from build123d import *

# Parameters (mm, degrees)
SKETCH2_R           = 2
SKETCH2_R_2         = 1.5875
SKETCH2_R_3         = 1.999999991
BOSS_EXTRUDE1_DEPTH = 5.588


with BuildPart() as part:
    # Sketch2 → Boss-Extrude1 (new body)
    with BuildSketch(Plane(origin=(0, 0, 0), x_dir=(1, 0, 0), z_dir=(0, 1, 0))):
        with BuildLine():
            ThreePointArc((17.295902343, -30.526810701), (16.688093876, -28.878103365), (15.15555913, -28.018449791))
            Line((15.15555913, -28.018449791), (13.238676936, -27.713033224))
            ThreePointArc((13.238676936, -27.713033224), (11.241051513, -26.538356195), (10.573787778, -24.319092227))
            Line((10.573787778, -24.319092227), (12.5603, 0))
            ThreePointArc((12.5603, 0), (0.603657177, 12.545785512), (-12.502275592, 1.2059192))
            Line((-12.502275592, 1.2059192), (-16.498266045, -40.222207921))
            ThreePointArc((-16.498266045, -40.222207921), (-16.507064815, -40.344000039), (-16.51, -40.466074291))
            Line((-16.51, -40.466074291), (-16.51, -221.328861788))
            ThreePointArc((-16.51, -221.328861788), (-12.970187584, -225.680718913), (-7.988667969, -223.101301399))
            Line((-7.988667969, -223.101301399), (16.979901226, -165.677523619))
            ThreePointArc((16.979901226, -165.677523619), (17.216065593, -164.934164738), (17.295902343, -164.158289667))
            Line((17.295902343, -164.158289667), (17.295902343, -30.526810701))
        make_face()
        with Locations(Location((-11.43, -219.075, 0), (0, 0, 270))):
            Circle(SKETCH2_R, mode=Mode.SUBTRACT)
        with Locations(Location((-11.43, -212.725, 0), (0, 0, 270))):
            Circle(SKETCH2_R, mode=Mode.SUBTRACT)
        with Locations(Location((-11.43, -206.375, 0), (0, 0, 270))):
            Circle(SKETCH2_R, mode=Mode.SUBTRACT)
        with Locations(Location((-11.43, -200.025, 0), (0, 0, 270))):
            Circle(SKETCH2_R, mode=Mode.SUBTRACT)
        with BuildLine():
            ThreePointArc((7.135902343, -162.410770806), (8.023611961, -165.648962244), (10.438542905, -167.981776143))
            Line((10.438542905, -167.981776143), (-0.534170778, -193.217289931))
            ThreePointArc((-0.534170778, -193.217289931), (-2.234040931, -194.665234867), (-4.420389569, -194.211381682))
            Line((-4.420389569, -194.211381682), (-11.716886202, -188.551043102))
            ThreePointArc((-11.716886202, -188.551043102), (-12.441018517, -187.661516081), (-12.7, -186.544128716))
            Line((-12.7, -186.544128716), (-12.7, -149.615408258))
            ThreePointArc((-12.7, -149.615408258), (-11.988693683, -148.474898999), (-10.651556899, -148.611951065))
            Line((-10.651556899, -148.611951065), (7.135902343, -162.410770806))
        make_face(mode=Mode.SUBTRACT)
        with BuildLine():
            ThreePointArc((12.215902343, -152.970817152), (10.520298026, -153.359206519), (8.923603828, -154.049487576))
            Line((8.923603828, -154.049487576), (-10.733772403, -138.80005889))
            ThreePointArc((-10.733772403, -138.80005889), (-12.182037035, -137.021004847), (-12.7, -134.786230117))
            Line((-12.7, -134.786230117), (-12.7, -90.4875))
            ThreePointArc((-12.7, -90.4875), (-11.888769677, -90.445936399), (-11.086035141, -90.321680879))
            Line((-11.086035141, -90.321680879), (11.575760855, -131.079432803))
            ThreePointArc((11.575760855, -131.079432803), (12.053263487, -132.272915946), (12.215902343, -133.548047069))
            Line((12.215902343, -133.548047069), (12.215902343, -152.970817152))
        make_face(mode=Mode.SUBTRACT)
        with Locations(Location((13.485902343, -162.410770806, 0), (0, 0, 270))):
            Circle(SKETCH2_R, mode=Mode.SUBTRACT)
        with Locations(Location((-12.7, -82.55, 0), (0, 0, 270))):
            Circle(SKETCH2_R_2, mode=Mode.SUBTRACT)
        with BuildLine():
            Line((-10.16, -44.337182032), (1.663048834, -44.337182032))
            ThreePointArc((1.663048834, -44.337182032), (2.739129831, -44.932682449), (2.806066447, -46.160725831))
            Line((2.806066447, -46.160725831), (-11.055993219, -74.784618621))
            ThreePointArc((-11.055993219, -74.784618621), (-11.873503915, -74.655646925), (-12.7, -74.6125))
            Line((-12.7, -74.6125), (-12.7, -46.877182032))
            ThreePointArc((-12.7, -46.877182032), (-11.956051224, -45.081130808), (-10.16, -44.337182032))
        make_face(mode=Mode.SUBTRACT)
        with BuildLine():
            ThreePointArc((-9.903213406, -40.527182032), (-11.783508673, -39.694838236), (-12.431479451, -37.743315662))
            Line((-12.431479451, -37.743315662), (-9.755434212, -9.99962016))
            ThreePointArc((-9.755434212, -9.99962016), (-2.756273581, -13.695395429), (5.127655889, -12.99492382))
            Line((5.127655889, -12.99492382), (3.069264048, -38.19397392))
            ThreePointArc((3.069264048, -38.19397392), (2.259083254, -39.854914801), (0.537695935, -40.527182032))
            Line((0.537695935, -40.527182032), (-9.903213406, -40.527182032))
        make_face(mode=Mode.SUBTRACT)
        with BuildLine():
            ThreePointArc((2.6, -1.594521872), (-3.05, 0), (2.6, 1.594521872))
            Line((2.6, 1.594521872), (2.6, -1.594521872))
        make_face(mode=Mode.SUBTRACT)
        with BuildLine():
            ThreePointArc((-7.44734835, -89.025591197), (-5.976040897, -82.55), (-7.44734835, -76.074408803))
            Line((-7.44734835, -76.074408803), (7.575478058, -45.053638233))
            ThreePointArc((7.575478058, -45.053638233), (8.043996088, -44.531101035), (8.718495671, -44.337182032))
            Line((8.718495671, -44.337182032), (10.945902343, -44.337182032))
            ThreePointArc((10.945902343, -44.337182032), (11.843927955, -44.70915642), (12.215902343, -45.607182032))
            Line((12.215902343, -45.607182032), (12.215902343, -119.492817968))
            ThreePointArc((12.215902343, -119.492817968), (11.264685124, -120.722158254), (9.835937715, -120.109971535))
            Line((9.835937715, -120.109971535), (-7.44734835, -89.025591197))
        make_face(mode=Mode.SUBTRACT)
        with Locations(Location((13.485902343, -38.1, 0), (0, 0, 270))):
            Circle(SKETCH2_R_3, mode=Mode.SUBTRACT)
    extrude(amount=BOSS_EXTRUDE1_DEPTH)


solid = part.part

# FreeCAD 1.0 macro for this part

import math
import FreeCAD as App
import Part
import Sketcher
from FreeCAD import Vector
Q = App.Units.Quantity

doc = App.newDocument("Part")
body = doc.addObject("PartDesign::Body", "Body")

# Sketch on XZ plane
sketch1 = doc.addObject("Sketcher::SketchObject", "Sketch")
body.addObject(sketch1)
sketch1.AttachmentSupport = (doc.XZ_Plane, [""])
sketch1.MapMode = "FlatFace"
sketch1.addGeometry(Part.ArcOfCircle(Part.Circle(Vector(14.755902, 30.526811, 0), Vector(0, 0, 1), 2.54), math.radians(-80.947165), math.radians(0)), False)
sketch1.addGeometry(Part.LineSegment(Vector(15.155559, 28.01845, 0), Vector(13.238677, 27.713033, 0)), False)
sketch1.addGeometry(Part.ArcOfCircle(Part.Circle(Vector(13.738248, 24.577582, 0), Vector(0, 0, 1), 3.175), math.radians(99.052835), math.radians(184.669855)), False)
sketch1.addGeometry(Part.LineSegment(Vector(10.573788, 24.319092, 0), Vector(12.5603, 0, 0)), False)
sketch1.addGeometry(Part.ArcOfCircle(Part.Circle(Vector(0, 0, 0), Vector(0, 0, 1), 12.5603), math.radians(-174.490524), math.radians(0)), False)
sketch1.addGeometry(Part.LineSegment(Vector(-12.502276, -1.205919, 0), Vector(-16.498266, 40.222208, 0)), False)
sketch1.addGeometry(Part.ArcOfCircle(Part.Circle(Vector(-13.97, 40.466074, 0), Vector(0, 0, 1), 2.54), math.radians(-180), math.radians(-174.490524)), False)
sketch1.addGeometry(Part.LineSegment(Vector(-16.51, 40.466074, 0), Vector(-16.51, 221.328862, 0)), False)
sketch1.addGeometry(Part.ArcOfCircle(Part.Circle(Vector(-12.065, 221.328862, 0), Vector(0, 0, 1), 4.445), math.radians(23.5), math.radians(180)), False)
sketch1.addGeometry(Part.LineSegment(Vector(-7.988668, 223.101301, 0), Vector(16.979901, 165.677524, 0)), False)
sketch1.addGeometry(Part.ArcOfCircle(Part.Circle(Vector(13.485902, 164.15829, 0), Vector(0, 0, 1), 3.81), math.radians(0), math.radians(23.5)), False)
sketch1.addGeometry(Part.LineSegment(Vector(17.295902, 164.15829, 0), Vector(17.295902, 30.526811, 0)), False)
sketch1.addGeometry(Part.Circle(Vector(-11.43, 219.075, 0), Vector(0, 0, 1), 2), False)
sketch1.addGeometry(Part.Circle(Vector(-11.43, 212.725, 0), Vector(0, 0, 1), 2), False)
sketch1.addGeometry(Part.Circle(Vector(-11.43, 206.375, 0), Vector(0, 0, 1), 2), False)
sketch1.addGeometry(Part.Circle(Vector(-11.43, 200.025, 0), Vector(0, 0, 1), 2), False)
sketch1.addGeometry(Part.LineSegment(Vector(-10.651557, 148.611951, 0), Vector(7.135902, 162.410771, 0)), False)
sketch1.addGeometry(Part.ArcOfCircle(Part.Circle(Vector(13.485902, 162.410771, 0), Vector(0, 0, 1), 6.35), math.radians(118.678814), math.radians(180)), False)
sketch1.addGeometry(Part.LineSegment(Vector(10.438543, 167.981776, 0), Vector(-0.534171, 193.21729, 0)), False)
sketch1.addGeometry(Part.ArcOfCircle(Part.Circle(Vector(-2.863503, 192.204467, 0), Vector(0, 0, 1), 2.54), math.radians(23.5), math.radians(127.80292)), False)
sketch1.addGeometry(Part.LineSegment(Vector(-4.42039, 194.211382, 0), Vector(-11.716886, 188.551043, 0)), False)
sketch1.addGeometry(Part.ArcOfCircle(Part.Circle(Vector(-10.16, 186.544129, 0), Vector(0, 0, 1), 2.54), math.radians(127.80292), math.radians(180)), False)
sketch1.addGeometry(Part.LineSegment(Vector(-12.7, 186.544129, 0), Vector(-12.7, 149.615408, 0)), False)
sketch1.addGeometry(Part.ArcOfCircle(Part.Circle(Vector(-11.43, 149.615408, 0), Vector(0, 0, 1), 1.27), math.radians(180), math.radians(307.80292)), False)
sketch1.addGeometry(Part.LineSegment(Vector(12.215902, 133.548047, 0), Vector(12.215902, 152.970817, 0)), False)
sketch1.addGeometry(Part.ArcOfCircle(Part.Circle(Vector(13.485902, 162.410771, 0), Vector(0, 0, 1), 9.525), math.radians(-118.618901), math.radians(-97.662256)), False)
sketch1.addGeometry(Part.LineSegment(Vector(8.923604, 154.049488, 0), Vector(-10.733772, 138.800059, 0)), False)
sketch1.addGeometry(Part.ArcOfCircle(Part.Circle(Vector(-7.62, 134.78623, 0), Vector(0, 0, 1), 5.08), math.radians(127.80292), math.radians(180)), False)
sketch1.addGeometry(Part.LineSegment(Vector(-12.7, 134.78623, 0), Vector(-12.7, 90.4875, 0)), False)
sketch1.addGeometry(Part.ArcOfCircle(Part.Circle(Vector(-12.7, 82.55, 0), Vector(0, 0, 1), 7.9375), math.radians(78.268001), math.radians(90)), False)
sketch1.addGeometry(Part.LineSegment(Vector(-11.086035, 90.321681, 0), Vector(11.575761, 131.079433, 0)), False)
sketch1.addGeometry(Part.ArcOfCircle(Part.Circle(Vector(7.135902, 133.548047, 0), Vector(0, 0, 1), 5.08), math.radians(-29.074581), math.radians(0)), False)
sketch1.addGeometry(Part.Circle(Vector(13.485902, 162.410771, 0), Vector(0, 0, 1), 2), False)
sketch1.addGeometry(Part.Circle(Vector(-12.7, 82.55, 0), Vector(0, 0, 1), 1.5875), False)
sketch1.addGeometry(Part.ArcOfCircle(Part.Circle(Vector(-10.16, 46.877182, 0), Vector(0, 0, 1), 2.54), math.radians(-180), math.radians(-90)), False)
sketch1.addGeometry(Part.LineSegment(Vector(-10.16, 44.337182, 0), Vector(1.663049, 44.337182, 0)), False)
sketch1.addGeometry(Part.ArcOfCircle(Part.Circle(Vector(1.663049, 45.607182, 0), Vector(0, 0, 1), 1.27), math.radians(-90), math.radians(25.84011)), False)
sketch1.addGeometry(Part.LineSegment(Vector(2.806066, 46.160726, 0), Vector(-11.055993, 74.784619, 0)), False)
sketch1.addGeometry(Part.ArcOfCircle(Part.Circle(Vector(-12.7, 82.55, 0), Vector(0, 0, 1), 7.9375), math.radians(-90), math.radians(-78.046431)), False)
sketch1.addGeometry(Part.LineSegment(Vector(-12.7, 74.6125, 0), Vector(-12.7, 46.877182, 0)), False)
sketch1.addGeometry(Part.LineSegment(Vector(0.537696, 40.527182, 0), Vector(-9.903213, 40.527182, 0)), False)
sketch1.addGeometry(Part.ArcOfCircle(Part.Circle(Vector(-9.903213, 37.987182, 0), Vector(0, 0, 1), 2.54), math.radians(90), math.radians(185.509476)), False)
sketch1.addGeometry(Part.LineSegment(Vector(-12.431479, 37.743316, 0), Vector(-9.755434, 9.99962, 0)), False)
sketch1.addGeometry(Part.ArcOfCircle(Part.Circle(Vector(0, 0, 0), Vector(0, 0, 1), 13.97), math.radians(68.466346), math.radians(134.291821)), False)
sketch1.addGeometry(Part.LineSegment(Vector(5.127656, 12.994924, 0), Vector(3.069264, 38.193974, 0)), False)
sketch1.addGeometry(Part.ArcOfCircle(Part.Circle(Vector(0.537696, 37.987182, 0), Vector(0, 0, 1), 2.54), math.radians(4.669855), math.radians(90)), False)
sketch1.addGeometry(Part.LineSegment(Vector(2.6, -1.594522, 0), Vector(2.6, 1.594522, 0)), False)
sketch1.addGeometry(Part.ArcOfCircle(Part.Circle(Vector(0, 0, 0), Vector(0, 0, 1), 3.05), math.radians(31.519859), math.radians(328.480141)), False)
sketch1.addGeometry(Part.LineSegment(Vector(9.835938, 120.109972, 0), Vector(-7.447348, 89.025591, 0)), False)
sketch1.addGeometry(Part.ArcOfCircle(Part.Circle(Vector(-20.962041, 82.55, 0), Vector(0, 0, 1), 14.986), math.radians(-25.601501), math.radians(25.601501)), False)
sketch1.addGeometry(Part.LineSegment(Vector(-7.447348, 76.074409, 0), Vector(7.575478, 45.053638, 0)), False)
sketch1.addGeometry(Part.ArcOfCircle(Part.Circle(Vector(8.718496, 45.607182, 0), Vector(0, 0, 1), 1.27), math.radians(-154.15989), math.radians(-90)), False)
sketch1.addGeometry(Part.LineSegment(Vector(8.718496, 44.337182, 0), Vector(10.945902, 44.337182, 0)), False)
sketch1.addGeometry(Part.ArcOfCircle(Part.Circle(Vector(10.945902, 45.607182, 0), Vector(0, 0, 1), 1.27), math.radians(-90), math.radians(0)), False)
sketch1.addGeometry(Part.LineSegment(Vector(12.215902, 45.607182, 0), Vector(12.215902, 119.492818, 0)), False)
sketch1.addGeometry(Part.ArcOfCircle(Part.Circle(Vector(10.945902, 119.492818, 0), Vector(0, 0, 1), 1.27), math.radians(0), math.radians(150.925419)), False)
sketch1.addGeometry(Part.Circle(Vector(13.485902, 38.1, 0), Vector(0, 0, 1), 2), False)
sketch1.addConstraint(Sketcher.Constraint("Tangent", 0, 1, 1, 1))
sketch1.addConstraint(Sketcher.Constraint("Tangent", 1, 2, 2, 1))
sketch1.addConstraint(Sketcher.Constraint("Tangent", 2, 2, 3, 1))
sketch1.addConstraint(Sketcher.Constraint("Coincident", 3, 2, 4, 2))
sketch1.addConstraint(Sketcher.Constraint("Tangent", 4, 1, 5, 1))
sketch1.addConstraint(Sketcher.Constraint("Tangent", 5, 2, 6, 2))
sketch1.addConstraint(Sketcher.Constraint("Tangent", 6, 1, 7, 1))
sketch1.addConstraint(Sketcher.Constraint("Tangent", 7, 2, 8, 2))
sketch1.addConstraint(Sketcher.Constraint("Tangent", 8, 1, 9, 1))
sketch1.addConstraint(Sketcher.Constraint("Tangent", 9, 2, 10, 2))
sketch1.addConstraint(Sketcher.Constraint("Tangent", 10, 1, 11, 1))
sketch1.addConstraint(Sketcher.Constraint("Tangent", 11, 2, 0, 2))
sketch1.addConstraint(Sketcher.Constraint("Coincident", 16, 2, 17, 2))
sketch1.addConstraint(Sketcher.Constraint("Coincident", 17, 1, 18, 1))
sketch1.addConstraint(Sketcher.Constraint("Tangent", 18, 2, 19, 1))
sketch1.addConstraint(Sketcher.Constraint("Tangent", 19, 2, 20, 1))
sketch1.addConstraint(Sketcher.Constraint("Tangent", 20, 2, 21, 1))
sketch1.addConstraint(Sketcher.Constraint("Tangent", 21, 2, 22, 1))
sketch1.addConstraint(Sketcher.Constraint("Tangent", 22, 2, 23, 1))
sketch1.addConstraint(Sketcher.Constraint("Tangent", 23, 2, 16, 1))
sketch1.addConstraint(Sketcher.Constraint("Coincident", 24, 2, 25, 2))
sketch1.addConstraint(Sketcher.Constraint("Coincident", 25, 1, 26, 1))
sketch1.addConstraint(Sketcher.Constraint("Tangent", 26, 2, 27, 1))
sketch1.addConstraint(Sketcher.Constraint("Tangent", 27, 2, 28, 1))
sketch1.addConstraint(Sketcher.Constraint("Coincident", 28, 2, 29, 2))
sketch1.addConstraint(Sketcher.Constraint("Coincident", 29, 1, 30, 1))
sketch1.addConstraint(Sketcher.Constraint("Tangent", 30, 2, 31, 1))
sketch1.addConstraint(Sketcher.Constraint("Tangent", 31, 2, 24, 1))
sketch1.addConstraint(Sketcher.Constraint("Tangent", 34, 2, 35, 1))
sketch1.addConstraint(Sketcher.Constraint("Tangent", 35, 2, 36, 1))
sketch1.addConstraint(Sketcher.Constraint("Tangent", 36, 2, 37, 1))
sketch1.addConstraint(Sketcher.Constraint("Coincident", 37, 2, 38, 2))
sketch1.addConstraint(Sketcher.Constraint("Coincident", 38, 1, 39, 1))
sketch1.addConstraint(Sketcher.Constraint("Tangent", 39, 2, 34, 1))
sketch1.addConstraint(Sketcher.Constraint("Tangent", 40, 2, 41, 1))
sketch1.addConstraint(Sketcher.Constraint("Tangent", 41, 2, 42, 1))
sketch1.addConstraint(Sketcher.Constraint("Coincident", 42, 2, 43, 2))
sketch1.addConstraint(Sketcher.Constraint("Coincident", 43, 1, 44, 1))
sketch1.addConstraint(Sketcher.Constraint("Tangent", 44, 2, 45, 1))
sketch1.addConstraint(Sketcher.Constraint("Tangent", 45, 2, 40, 1))
sketch1.addConstraint(Sketcher.Constraint("Coincident", 46, 1, 47, 2))
sketch1.addConstraint(Sketcher.Constraint("Coincident", 47, 1, 46, 2))
sketch1.addConstraint(Sketcher.Constraint("Coincident", 48, 2, 49, 2))
sketch1.addConstraint(Sketcher.Constraint("Coincident", 49, 1, 50, 1))
sketch1.addConstraint(Sketcher.Constraint("Tangent", 50, 2, 51, 1))
sketch1.addConstraint(Sketcher.Constraint("Tangent", 51, 2, 52, 1))
sketch1.addConstraint(Sketcher.Constraint("Tangent", 52, 2, 53, 1))
sketch1.addConstraint(Sketcher.Constraint("Tangent", 53, 2, 54, 1))
sketch1.addConstraint(Sketcher.Constraint("Tangent", 54, 2, 55, 1))
sketch1.addConstraint(Sketcher.Constraint("Tangent", 55, 2, 48, 1))
sketch1.addConstraint(Sketcher.Constraint("Vertical", 7))
sketch1.addConstraint(Sketcher.Constraint("Vertical", 11))
sketch1.addConstraint(Sketcher.Constraint("Vertical", 22))
sketch1.addConstraint(Sketcher.Constraint("Vertical", 24))
sketch1.addConstraint(Sketcher.Constraint("Vertical", 28))
sketch1.addConstraint(Sketcher.Constraint("Horizontal", 35))
sketch1.addConstraint(Sketcher.Constraint("Vertical", 39))
sketch1.addConstraint(Sketcher.Constraint("Horizontal", 40))
sketch1.addConstraint(Sketcher.Constraint("Vertical", 46))
sketch1.addConstraint(Sketcher.Constraint("Horizontal", 52))
sketch1.addConstraint(Sketcher.Constraint("Vertical", 54))
sketch1.addConstraint(Sketcher.Constraint("Coincident", 4, 3, -1, 1))
sketch1.addConstraint(Sketcher.Constraint("Coincident", 43, 3, -1, 1))
sketch1.addConstraint(Sketcher.Constraint("Coincident", 47, 3, -1, 1))
sketch1.addConstraint(Sketcher.Constraint("Coincident", 25, 3, 17, 3))
sketch1.addConstraint(Sketcher.Constraint("Coincident", 32, 3, 17, 3))
sketch1.addConstraint(Sketcher.Constraint("Coincident", 33, 3, 29, 3))
sketch1.addConstraint(Sketcher.Constraint("Coincident", 38, 3, 29, 3))
sketch1.addConstraint(Sketcher.Constraint("Equal", 0, 6))
sketch1.addConstraint(Sketcher.Constraint("Equal", 12, 13))
sketch1.addConstraint(Sketcher.Constraint("Equal", 13, 14))
sketch1.addConstraint(Sketcher.Constraint("Equal", 14, 15))
sketch1.addConstraint(Sketcher.Constraint("Equal", 6, 19))
sketch1.addConstraint(Sketcher.Constraint("Equal", 19, 21))
sketch1.addConstraint(Sketcher.Constraint("Equal", 27, 31))
sketch1.addConstraint(Sketcher.Constraint("Equal", 15, 32))
sketch1.addConstraint(Sketcher.Constraint("Equal", 21, 34))
sketch1.addConstraint(Sketcher.Constraint("Equal", 23, 36))
sketch1.addConstraint(Sketcher.Constraint("Equal", 29, 38))
sketch1.addConstraint(Sketcher.Constraint("Equal", 34, 41))
sketch1.addConstraint(Sketcher.Constraint("Equal", 41, 45))
sketch1.addConstraint(Sketcher.Constraint("Equal", 36, 51))
sketch1.addConstraint(Sketcher.Constraint("Equal", 51, 53))
sketch1.addConstraint(Sketcher.Constraint("Equal", 53, 55))
sketch1.addConstraint(Sketcher.Constraint("Equal", 32, 56))
sketch1.addConstraint(Sketcher.Constraint("PointOnObject", 3, 2, -1))
sketch1.addConstraint(Sketcher.Constraint("Parallel", 9, 18))
sketch1.addConstraint(Sketcher.Constraint("Parallel", 16, 20))
sketch1.addConstraint(Sketcher.Constraint("Parallel", 20, 26))
sketch1.addConstraint(Sketcher.Constraint("Parallel", 5, 42))
sketch1.addConstraint(Sketcher.Constraint("Parallel", 3, 44))
sketch1.addConstraint(Sketcher.Constraint("Parallel", 30, 48))
sketch1.addConstraint(Sketcher.Constraint("Parallel", 37, 50))
sketch1.addConstraint(Sketcher.Constraint("Horizontal", 38, 3, 49, 3))
sketch1.addConstraint(Sketcher.Constraint("Horizontal", 36, 3, 51, 3))
sketch1.addConstraint(Sketcher.Constraint("Horizontal", 32, 3, 16, 2))
sketch1.addConstraint(Sketcher.Constraint("Vertical", 12, 3, 13, 3))
sketch1.addConstraint(Sketcher.Constraint("Vertical", 13, 3, 14, 3))
sketch1.addConstraint(Sketcher.Constraint("Vertical", 14, 3, 15, 3))
sketch1.addConstraint(Sketcher.Constraint("Vertical", 10, 3, 17, 3))
sketch1.addConstraint(Sketcher.Constraint("Vertical", 15, 3, 23, 3))
sketch1.addConstraint(Sketcher.Constraint("Vertical", 21, 3, 34, 3))
sketch1.addConstraint(Sketcher.Constraint("Vertical", 32, 3, 56, 3))
sketch1.addConstraint(Sketcher.Constraint("Vertical", 31, 3, 16, 2))
sketch1.addConstraint(Sketcher.Constraint("Vertical", 38, 3, 21, 2))
sketch1.addConstraint(Sketcher.Constraint("Vertical", 22, 2, 27, 2))
sketch1.addConstraint(Sketcher.Constraint("Vertical", 48, 2, 49, 1))
sketch1.addConstraint(Sketcher.Constraint("Vertical", 31, 2, 53, 2))
sketch1.addConstraint(Sketcher.Constraint("Radius", 0, Q("0.1 in")))
sketch1.addConstraint(Sketcher.Constraint("Radius", 27, Q("0.2 in")))
sketch1.addConstraint(Sketcher.Constraint("Radius", 10, Q("0.15 in")))
sketch1.addConstraint(Sketcher.Constraint("Radius", 17, Q("0.25 in")))
sketch1.addConstraint(Sketcher.Constraint("Radius", 23, Q("0.05 in")))
sketch1.addConstraint(Sketcher.Constraint("Radius", 43, Q("0.55 in")))
sketch1.addConstraint(Sketcher.Constraint("Radius", 49, Q("0.59 in")))
sketch1.addConstraint(Sketcher.Constraint("Diameter", 33, Q("0.125 in")))
sketch1.addConstraint(Sketcher.Constraint("Radius", 2, Q("0.125 in")))
sketch1.addConstraint(Sketcher.Constraint("Radius", 8, Q("0.175 in")))
sketch1.addConstraint(Sketcher.Constraint("Radius", 25, Q("0.375 in")))
sketch1.addConstraint(Sketcher.Constraint("Radius", 29, Q("0.3125 in")))
sketch1.addConstraint(Sketcher.Constraint("DistanceX", 21, 3, -1, 1, Q("0.4 in")))
sketch1.addConstraint(Sketcher.Constraint("DistanceY", -1, 1, 56, 3, Q("1.5 in")))
sketch1.addConstraint(Sketcher.Constraint("Angle", 9, Q("-66.5 deg")))
sketch1.addConstraint(Sketcher.Constraint("Radius", 4, Q("0.4945 in")))
sketch1.addConstraint(Sketcher.Constraint("Diameter", 12, 4.0))
sketch1.addConstraint(Sketcher.Constraint("DistanceX", 6, 3, -1, 1, Q("0.55 in")))
sketch1.addConstraint(Sketcher.Constraint("DistanceY", -1, 1, 29, 3, Q("3.25 in")))
sketch1.addConstraint(Sketcher.Constraint("Radius", 47, 3.05))
sketch1.addConstraint(Sketcher.Constraint("DistanceY", -1, 1, 12, 3, Q("8.625 in")))
sketch1.addConstraint(Sketcher.Constraint("DistanceY", -1, 1, 13, 3, Q("8.375 in")))
sketch1.addConstraint(Sketcher.Constraint("DistanceY", -1, 1, 14, 3, Q("8.125 in")))
sketch1.addConstraint(Sketcher.Constraint("DistanceY", -1, 1, 15, 3, Q("7.875 in")))
sketch1.addConstraint(Sketcher.Constraint("DistanceX", -1, 1, 9, 2, Q("0.6685 in")))
sketch1.addConstraint(Sketcher.Constraint("Distance", 5, 41.6204))
sketch1.addConstraint(Sketcher.Constraint("DistanceX", 35, 1, 35, 2, 11.823049))
sketch1.addConstraint(Sketcher.Constraint("DistanceX", 40, 2, 40, 1, 10.440909))
sketch1.addConstraint(Sketcher.Constraint("DistanceY", 11, 2, 11, 1, 133.631479))
sketch1.addConstraint(Sketcher.Constraint("DistanceY", 22, 2, 22, 1, 36.92872))
sketch1.addConstraint(Sketcher.Constraint("DistanceY", 24, 1, 24, 2, 19.42277))
sketch1.addConstraint(Sketcher.Constraint("DistanceY", 28, 2, 28, 1, 44.29873))
sketch1.addConstraint(Sketcher.Constraint("DistanceY", -1, 1, 8, 1, 223.101301))
sketch1.addConstraint(Sketcher.Constraint("DistanceX", -1, 1, 46, 1, 2.6))
sketch1.addConstraint(Sketcher.Constraint("Distance", 1, 1.941061))
sketch1.addConstraint(Sketcher.Constraint("Distance", 3, 24.400092))
sketch1.addConstraint(Sketcher.Constraint("Distance", 18, 27.517842))
sketch1.addConstraint(Sketcher.Constraint("Distance", 30, 46.634229))
sketch1.addConstraint(Sketcher.Constraint("Distance", 44, 25.28298))
sketch1.addConstraint(Sketcher.Constraint("Distance", 50, 34.466992))
sketch1.addConstraint(Sketcher.Constraint("DistanceX", 52, 1, 52, 2, 2.227407))
sketch1.addConstraint(Sketcher.Constraint("DistanceY", 39, 2, 39, 1, 27.735318))
sketch1.addConstraint(Sketcher.Constraint("DistanceY", 54, 1, 54, 2, 73.885636))
sketch1.addConstraint(Sketcher.Constraint("DistanceY", -1, 1, 17, 3, 162.410771))
sketch1.addConstraint(Sketcher.Constraint("DistanceY", -1, 1, 21, 3, 186.544129))
sketch1.addConstraint(Sketcher.Constraint("DistanceX", 41, 2, -1, 1, 12.431479))
pad1 = doc.addObject("PartDesign::Pad", "Pad")
body.addObject(pad1)
pad1.Profile = sketch1
pad1.Length = Q("0.22 in")
pad1.Reversed = True

doc.recompute()
